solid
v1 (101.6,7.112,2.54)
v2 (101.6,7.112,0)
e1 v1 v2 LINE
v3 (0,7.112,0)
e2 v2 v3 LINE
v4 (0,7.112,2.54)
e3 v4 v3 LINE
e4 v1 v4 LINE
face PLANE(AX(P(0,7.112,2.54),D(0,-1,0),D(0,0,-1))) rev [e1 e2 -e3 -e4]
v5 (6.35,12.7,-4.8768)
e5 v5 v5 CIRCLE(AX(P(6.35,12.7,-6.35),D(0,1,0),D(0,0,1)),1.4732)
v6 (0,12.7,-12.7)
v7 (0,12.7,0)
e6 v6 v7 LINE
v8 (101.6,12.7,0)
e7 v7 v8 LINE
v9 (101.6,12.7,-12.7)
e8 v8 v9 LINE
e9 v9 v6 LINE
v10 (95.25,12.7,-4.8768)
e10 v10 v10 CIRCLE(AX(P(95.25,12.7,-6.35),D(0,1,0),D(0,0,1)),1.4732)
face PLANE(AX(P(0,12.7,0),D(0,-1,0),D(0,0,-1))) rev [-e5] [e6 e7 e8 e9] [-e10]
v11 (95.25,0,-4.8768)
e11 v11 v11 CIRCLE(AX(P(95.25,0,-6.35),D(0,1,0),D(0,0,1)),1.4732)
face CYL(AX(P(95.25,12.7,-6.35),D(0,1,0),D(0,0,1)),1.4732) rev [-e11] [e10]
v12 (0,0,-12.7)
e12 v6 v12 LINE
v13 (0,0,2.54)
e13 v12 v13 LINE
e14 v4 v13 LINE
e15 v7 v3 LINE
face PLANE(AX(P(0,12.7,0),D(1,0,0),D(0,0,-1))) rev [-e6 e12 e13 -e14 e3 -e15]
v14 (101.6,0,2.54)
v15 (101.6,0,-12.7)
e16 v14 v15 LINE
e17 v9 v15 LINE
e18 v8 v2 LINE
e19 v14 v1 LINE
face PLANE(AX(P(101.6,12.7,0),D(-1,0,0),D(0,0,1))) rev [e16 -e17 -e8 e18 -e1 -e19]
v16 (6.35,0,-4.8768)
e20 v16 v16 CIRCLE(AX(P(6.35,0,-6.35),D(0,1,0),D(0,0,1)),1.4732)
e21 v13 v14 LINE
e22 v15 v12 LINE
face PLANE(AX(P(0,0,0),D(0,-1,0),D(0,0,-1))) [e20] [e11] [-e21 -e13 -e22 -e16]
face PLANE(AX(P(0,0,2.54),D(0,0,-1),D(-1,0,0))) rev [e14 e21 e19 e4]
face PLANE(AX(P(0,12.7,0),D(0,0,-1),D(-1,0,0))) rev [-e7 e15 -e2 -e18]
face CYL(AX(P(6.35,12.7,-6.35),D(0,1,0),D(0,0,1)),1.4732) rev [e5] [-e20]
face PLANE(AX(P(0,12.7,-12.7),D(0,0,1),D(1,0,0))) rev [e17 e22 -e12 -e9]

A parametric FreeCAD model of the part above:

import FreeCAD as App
import Part
import Sketcher

V = App.Vector
Q = App.Units.Quantity


def add_polygon(sketch, points):
    """Adds a closed chain of lines whose ends are joined by coincident constraints."""
    first, n = sketch.GeometryCount, len(points)
    for a, b in zip(points, points[1:] + points[:1]):
        sketch.addGeometry(Part.LineSegment(App.Vector(*a, 0), App.Vector(*b, 0)), False)
    for i in range(n):
        sketch.addConstraint(Sketcher.Constraint("Coincident", first + i, 2, first + (i + 1) % n, 1))

doc = App.newDocument("Part")
body = doc.addObject("PartDesign::Body", "Body")

# Sketch on XZ plane
sketch1 = body.newObject("Sketcher::SketchObject", "Sketch")
sketch1.AttachmentSupport = (doc.getObject("XZ_Plane"), [""])
sketch1.MapMode = "FlatFace"
add_polygon(sketch1, [(0, -13), (0, 0), (102, 0), (102, -13)])  # lines 0-3
sketch1.addConstraint(Sketcher.Constraint("Vertical", 0))
sketch1.addConstraint(Sketcher.Constraint("Horizontal", 1))
sketch1.addConstraint(Sketcher.Constraint("Vertical", 2))
sketch1.addConstraint(Sketcher.Constraint("Horizontal", 3))
sketch1.addConstraint(Sketcher.Constraint("Coincident", 0, 2, -1, 1))
sketch1.addConstraint(Sketcher.Constraint("DistanceX", 1, 1, 1, 2, Q("4 in")))
sketch1.addConstraint(Sketcher.Constraint("DistanceY", 0, 1, 0, 2, Q("0.5 in")))
pad1 = body.newObject("PartDesign::Pad", "Pad")
pad1.Profile = sketch1
pad1.Length = Q("0.5 in")
pad1.Reversed = True

# Sketch on XZ plane
sketch2 = body.newObject("Sketcher::SketchObject", "Sketch001")
sketch2.AttachmentSupport = (doc.getObject("XZ_Plane"), [""])
sketch2.MapMode = "FlatFace"
sketch2.AttachmentOffset = App.Placement(V(0, 0, -0.5 * 25.4), App.Rotation())
sketch2.addGeometry(Part.Circle(V(6.3, -6.3, 0), V(0, 0, 1), 1.5), False)
sketch2.addGeometry(Part.Circle(V(95.2, -6.3, 0), V(0, 0, 1), 1.5), False)
sketch2.addConstraint(Sketcher.Constraint("Equal", 0, 1))
sketch2.addConstraint(Sketcher.Constraint("Horizontal", 0, 3, 1, 3))
sketch2.addConstraint(Sketcher.Constraint("Diameter", 0, Q("0.116 in")))
sketch2.addConstraint(Sketcher.Constraint("DistanceX", 0, 3, 1, 3, Q("3.5 in")))
sketch2.addConstraint(Sketcher.Constraint("DistanceX", -1, 1, 0, 3, Q("0.25 in")))
sketch2.addConstraint(Sketcher.Constraint("DistanceY", 0, 3, -1, 1, Q("0.25 in")))
doc.recompute()
hole = body.newObject("PartDesign::Hole", "Hole")
hole.Profile = sketch2
hole.ThreadType = "None"
hole.Diameter = Q("0.116 in")
hole.DepthType = "ThroughAll"
hole.Reversed = True

# Sketch on XY plane
sketch3 = body.newObject("Sketcher::SketchObject", "Sketch002")
sketch3.AttachmentSupport = (doc.getObject("XY_Plane"), [""])
sketch3.MapMode = "FlatFace"
add_polygon(sketch3, [(0, 7), (0, 0), (102, 0), (102, 7)])  # lines 0-3
sketch3.addConstraint(Sketcher.Constraint("Vertical", 0))
sketch3.addConstraint(Sketcher.Constraint("Horizontal", 1))
sketch3.addConstraint(Sketcher.Constraint("Vertical", 2))
sketch3.addConstraint(Sketcher.Constraint("Horizontal", 3))
sketch3.addConstraint(Sketcher.Constraint("Coincident", 0, 2, -1, 1))
sketch3.addConstraint(Sketcher.Constraint("DistanceX", 1, 1, 1, 2, Q("4 in")))
sketch3.addConstraint(Sketcher.Constraint("DistanceY", 0, 2, 0, 1, Q("0.28 in")))
pad2 = body.newObject("PartDesign::Pad", "Pad001")
pad2.Profile = sketch3
pad2.Length = Q("0.1 in")

doc.recompute()
